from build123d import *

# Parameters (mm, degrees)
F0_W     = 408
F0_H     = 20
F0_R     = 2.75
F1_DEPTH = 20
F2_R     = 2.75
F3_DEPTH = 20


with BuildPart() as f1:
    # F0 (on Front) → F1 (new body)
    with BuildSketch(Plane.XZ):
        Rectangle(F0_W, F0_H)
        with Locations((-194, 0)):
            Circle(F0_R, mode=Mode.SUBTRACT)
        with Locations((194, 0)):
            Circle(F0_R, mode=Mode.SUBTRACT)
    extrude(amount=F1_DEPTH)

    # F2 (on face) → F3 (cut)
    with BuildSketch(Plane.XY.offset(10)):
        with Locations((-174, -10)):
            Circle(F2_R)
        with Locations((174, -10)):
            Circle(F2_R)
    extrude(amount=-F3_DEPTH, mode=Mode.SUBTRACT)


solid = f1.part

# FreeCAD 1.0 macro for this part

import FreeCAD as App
import Part
import Sketcher

V = App.Vector

doc = App.newDocument("Part")
params = doc.addObject("Spreadsheet::Sheet", "Params")
for row, (alias, value) in enumerate([
    ("sketch1_diameter", "5.5 mm"),
    ("sketch1_width", "408 mm"),
    ("sketch1_height", "20 mm"),
    ("pad1_length", "20 mm"),
    ("sketch2_diameter", "5.5 mm"),
    ("pocket1_length", "20 mm"),
], start=1):
    params.set(f"A{row}", alias)
    params.set(f"B{row}", "=" + value)
    params.setAlias(f"B{row}", alias)

body = doc.addObject("PartDesign::Body", "Body")

# Sketch on XZ plane
sketch1 = body.newObject("Sketcher::SketchObject", "Sketch")
sketch1.AttachmentSupport = (doc.getObject("XZ_Plane"), [""])
sketch1.MapMode = "FlatFace"
sketch1.addGeometry([
    Part.LineSegment(V(-204, 10, 0), V(-204, -10, 0)),  # 0
    Part.LineSegment(V(-204, -10, 0), V(204, -10, 0)),  # 1
    Part.LineSegment(V(204, -10, 0), V(204, 10, 0)),  # 2
    Part.LineSegment(V(204, 10, 0), V(-204, 10, 0)),  # 3
    Part.Circle(V(-194, 0, 0), V(0, 0, 1), 2.75),  # 4
    Part.Circle(V(194, 0, 0), V(0, 0, 1), 2.75),  # 5
], False)
sketch1.addConstraint([
    Sketcher.Constraint("Coincident", 0, 2, 1, 1),
    Sketcher.Constraint("Coincident", 1, 2, 2, 1),
    Sketcher.Constraint("Coincident", 2, 2, 3, 1),
    Sketcher.Constraint("Coincident", 3, 2, 0, 1),
    Sketcher.Constraint("Vertical", 0),
    Sketcher.Constraint("Horizontal", 1),
    Sketcher.Constraint("Vertical", 2),
    Sketcher.Constraint("Horizontal", 3),
    Sketcher.Constraint("Equal", 4, 5),
    Sketcher.Constraint("Symmetric", 4, 3, 5, 3, -1, 1),
    Sketcher.Constraint("Symmetric", 0, 2, 2, 2, -1, 1),
    Sketcher.Constraint("PointOnObject", 4, 3, -1),
    Sketcher.Constraint("Diameter", 4, 5.5),
    Sketcher.Constraint("DistanceX", 1, 1, 1, 2, 408.0),
    Sketcher.Constraint("DistanceY", 0, 2, 0, 1, 20.0),
    Sketcher.Constraint("DistanceX", 4, 3, -1, 1, 194.0),
])
sketch1.setExpression("Constraints[12]", "Params.sketch1_diameter")
sketch1.setExpression("Constraints[13]", "Params.sketch1_width")
sketch1.setExpression("Constraints[14]", "Params.sketch1_height")
pad1 = body.newObject("PartDesign::Pad", "Pad")
pad1.Profile = sketch1
pad1.setExpression("Length", "Params.pad1_length")

# Sketch on XY plane
sketch2 = body.newObject("Sketcher::SketchObject", "Sketch001")
sketch2.AttachmentSupport = (doc.getObject("XY_Plane"), [""])
sketch2.MapMode = "FlatFace"
sketch2.AttachmentOffset = App.Placement(V(0, 0, 10), App.Rotation())
sketch2.addGeometry([
    Part.Circle(V(-174, -10, 0), V(0, 0, 1), 2.75),
    Part.Circle(V(174, -10, 0), V(0, 0, 1), 2.75),
], False)
sketch2.addConstraint([
    Sketcher.Constraint("Equal", 0, 1),
    Sketcher.Constraint("Symmetric", 0, 3, 1, 3, -2),
    Sketcher.Constraint("Diameter", 0, 5.5),
    Sketcher.Constraint("DistanceX", 0, 3, -1, 1, 174.0),
    Sketcher.Constraint("DistanceY", 0, 3, -1, 1, 10.0),
])
sketch2.setExpression("Constraints[2]", "Params.sketch2_diameter")
pocket1 = body.newObject("PartDesign::Pocket", "Pocket")
pocket1.Profile = sketch2
pocket1.setExpression("Length", "Params.pocket1_length")

doc.recompute()
